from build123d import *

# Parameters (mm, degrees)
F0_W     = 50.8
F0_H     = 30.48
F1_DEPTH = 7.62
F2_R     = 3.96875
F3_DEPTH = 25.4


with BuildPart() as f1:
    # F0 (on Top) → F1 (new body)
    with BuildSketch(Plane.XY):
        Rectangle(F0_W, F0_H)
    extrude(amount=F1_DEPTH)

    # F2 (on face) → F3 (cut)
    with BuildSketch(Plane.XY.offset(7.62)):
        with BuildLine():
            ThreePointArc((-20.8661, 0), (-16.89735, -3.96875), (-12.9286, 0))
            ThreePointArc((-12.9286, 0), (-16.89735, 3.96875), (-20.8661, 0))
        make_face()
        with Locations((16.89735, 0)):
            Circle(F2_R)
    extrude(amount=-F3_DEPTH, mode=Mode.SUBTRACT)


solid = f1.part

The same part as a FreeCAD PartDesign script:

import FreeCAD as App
import Part
import Sketcher
Q = App.Units.Quantity

doc = App.newDocument("Part")
body = doc.addObject("PartDesign::Body", "Body")

sketch1 = body.newObject("Sketcher::SketchObject", "Sketch")
sketch1.AttachmentSupport = (doc.getObject("XY_Plane"), [""])
sketch1.MapMode = "FlatFace"
sketch1.addGeometry([
    Part.LineSegment(App.Vector(-25.4, 15.24, 0), App.Vector(-25.4, -15.24, 0)),
    Part.LineSegment(App.Vector(-25.4, -15.24, 0), App.Vector(25.4, -15.24, 0)),
    Part.LineSegment(App.Vector(25.4, -15.24, 0), App.Vector(25.4, 15.24, 0)),
    Part.LineSegment(App.Vector(25.4, 15.24, 0), App.Vector(-25.4, 15.24, 0)),
], False)
sketch1.addConstraint([
    Sketcher.Constraint("Coincident", 0, 2, 1, 1),
    Sketcher.Constraint("Coincident", 1, 2, 2, 1),
    Sketcher.Constraint("Coincident", 2, 2, 3, 1),
    Sketcher.Constraint("Coincident", 3, 2, 0, 1),
    Sketcher.Constraint("Vertical", 0),
    Sketcher.Constraint("Horizontal", 1),
    Sketcher.Constraint("Vertical", 2),
    Sketcher.Constraint("Horizontal", 3),
    Sketcher.Constraint("Symmetric", 0, 2, 2, 2, -1, 1),
    Sketcher.Constraint("DistanceX", 1, 1, 1, 2, Q("2 in")),
    Sketcher.Constraint("DistanceY", 0, 2, 0, 1, Q("1.2 in")),
])
pad1 = body.newObject("PartDesign::Pad", "Pad")
pad1.Profile = sketch1
pad1.Length = Q("0.3 in")

sketch2 = body.newObject("Sketcher::SketchObject", "Sketch001")
sketch2.AttachmentSupport = (doc.getObject("XY_Plane"), [""])
sketch2.MapMode = "FlatFace"
sketch2.AttachmentOffset = App.Placement(App.Vector(0, 0, 0.3 * 25.4), App.Rotation())
sketch2.addGeometry([
    Part.Circle(App.Vector(-16.89735, 0, 0), App.Vector(0, 0, 1), 3.96875),
    Part.Circle(App.Vector(16.89735, 0, 0), App.Vector(0, 0, 1), 3.96875),
], False)
sketch2.addConstraint([
    Sketcher.Constraint("Equal", 0, 1),
    Sketcher.Constraint("Symmetric", 0, 3, 1, 3, -1, 1),
    Sketcher.Constraint("PointOnObject", 0, 3, -1),
    Sketcher.Constraint("Diameter", 0, Q("0.3125 in")),
    Sketcher.Constraint("DistanceX", 0, 3, 1, 3, Q("1.3305 in")),
])
pocket1 = body.newObject("PartDesign::Pocket", "Pocket")
pocket1.Profile = sketch2
pocket1.Length = Q("1 in")

doc.recompute()
